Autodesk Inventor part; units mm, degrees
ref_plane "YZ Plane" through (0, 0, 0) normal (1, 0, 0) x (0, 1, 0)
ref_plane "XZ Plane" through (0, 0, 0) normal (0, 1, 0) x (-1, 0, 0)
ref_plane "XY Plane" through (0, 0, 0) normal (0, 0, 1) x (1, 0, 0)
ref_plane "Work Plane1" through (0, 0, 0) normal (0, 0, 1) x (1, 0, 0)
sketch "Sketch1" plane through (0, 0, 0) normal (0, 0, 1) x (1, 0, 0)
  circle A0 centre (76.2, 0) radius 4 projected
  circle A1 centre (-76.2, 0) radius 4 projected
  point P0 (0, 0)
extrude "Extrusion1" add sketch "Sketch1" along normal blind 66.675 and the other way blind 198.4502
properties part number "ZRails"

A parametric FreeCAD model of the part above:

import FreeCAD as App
import Part
import Sketcher

V = App.Vector
Q = App.Units.Quantity

doc = App.newDocument("Part")
body = doc.addObject("PartDesign::Body", "Body")
body.AllowCompound = True

sketch1 = body.newObject("Sketcher::SketchObject", "Sketch")
sketch1.AttachmentSupport = (doc.getObject("XY_Plane"), [""])
sketch1.MapMode = "FlatFace"
sketch1.addGeometry(Part.Circle(V(76.2, 0, 0), V(0, 0, 1), 4), False)
sketch1.addGeometry(Part.Circle(V(-76.2, 0, 0), V(0, 0, 1), 4), False)
sketch1.addConstraint(Sketcher.Constraint("Equal", 0, 1))
sketch1.addConstraint(Sketcher.Constraint("Symmetric", 0, 3, 1, 3, -1, 1))
sketch1.addConstraint(Sketcher.Constraint("PointOnObject", 0, 3, -1))
sketch1.addConstraint(Sketcher.Constraint("Diameter", 0, Q("8 mm")))
sketch1.addConstraint(Sketcher.Constraint("DistanceX", -1, 1, 0, 3, Q("76.2 mm")))
pad1 = body.newObject("PartDesign::Pad", "Pad")
pad1.Profile = sketch1
pad1.Type = "TwoLengths"
pad1.Length = 66.675
pad1.Length2 = 198.4502

doc.recompute()
